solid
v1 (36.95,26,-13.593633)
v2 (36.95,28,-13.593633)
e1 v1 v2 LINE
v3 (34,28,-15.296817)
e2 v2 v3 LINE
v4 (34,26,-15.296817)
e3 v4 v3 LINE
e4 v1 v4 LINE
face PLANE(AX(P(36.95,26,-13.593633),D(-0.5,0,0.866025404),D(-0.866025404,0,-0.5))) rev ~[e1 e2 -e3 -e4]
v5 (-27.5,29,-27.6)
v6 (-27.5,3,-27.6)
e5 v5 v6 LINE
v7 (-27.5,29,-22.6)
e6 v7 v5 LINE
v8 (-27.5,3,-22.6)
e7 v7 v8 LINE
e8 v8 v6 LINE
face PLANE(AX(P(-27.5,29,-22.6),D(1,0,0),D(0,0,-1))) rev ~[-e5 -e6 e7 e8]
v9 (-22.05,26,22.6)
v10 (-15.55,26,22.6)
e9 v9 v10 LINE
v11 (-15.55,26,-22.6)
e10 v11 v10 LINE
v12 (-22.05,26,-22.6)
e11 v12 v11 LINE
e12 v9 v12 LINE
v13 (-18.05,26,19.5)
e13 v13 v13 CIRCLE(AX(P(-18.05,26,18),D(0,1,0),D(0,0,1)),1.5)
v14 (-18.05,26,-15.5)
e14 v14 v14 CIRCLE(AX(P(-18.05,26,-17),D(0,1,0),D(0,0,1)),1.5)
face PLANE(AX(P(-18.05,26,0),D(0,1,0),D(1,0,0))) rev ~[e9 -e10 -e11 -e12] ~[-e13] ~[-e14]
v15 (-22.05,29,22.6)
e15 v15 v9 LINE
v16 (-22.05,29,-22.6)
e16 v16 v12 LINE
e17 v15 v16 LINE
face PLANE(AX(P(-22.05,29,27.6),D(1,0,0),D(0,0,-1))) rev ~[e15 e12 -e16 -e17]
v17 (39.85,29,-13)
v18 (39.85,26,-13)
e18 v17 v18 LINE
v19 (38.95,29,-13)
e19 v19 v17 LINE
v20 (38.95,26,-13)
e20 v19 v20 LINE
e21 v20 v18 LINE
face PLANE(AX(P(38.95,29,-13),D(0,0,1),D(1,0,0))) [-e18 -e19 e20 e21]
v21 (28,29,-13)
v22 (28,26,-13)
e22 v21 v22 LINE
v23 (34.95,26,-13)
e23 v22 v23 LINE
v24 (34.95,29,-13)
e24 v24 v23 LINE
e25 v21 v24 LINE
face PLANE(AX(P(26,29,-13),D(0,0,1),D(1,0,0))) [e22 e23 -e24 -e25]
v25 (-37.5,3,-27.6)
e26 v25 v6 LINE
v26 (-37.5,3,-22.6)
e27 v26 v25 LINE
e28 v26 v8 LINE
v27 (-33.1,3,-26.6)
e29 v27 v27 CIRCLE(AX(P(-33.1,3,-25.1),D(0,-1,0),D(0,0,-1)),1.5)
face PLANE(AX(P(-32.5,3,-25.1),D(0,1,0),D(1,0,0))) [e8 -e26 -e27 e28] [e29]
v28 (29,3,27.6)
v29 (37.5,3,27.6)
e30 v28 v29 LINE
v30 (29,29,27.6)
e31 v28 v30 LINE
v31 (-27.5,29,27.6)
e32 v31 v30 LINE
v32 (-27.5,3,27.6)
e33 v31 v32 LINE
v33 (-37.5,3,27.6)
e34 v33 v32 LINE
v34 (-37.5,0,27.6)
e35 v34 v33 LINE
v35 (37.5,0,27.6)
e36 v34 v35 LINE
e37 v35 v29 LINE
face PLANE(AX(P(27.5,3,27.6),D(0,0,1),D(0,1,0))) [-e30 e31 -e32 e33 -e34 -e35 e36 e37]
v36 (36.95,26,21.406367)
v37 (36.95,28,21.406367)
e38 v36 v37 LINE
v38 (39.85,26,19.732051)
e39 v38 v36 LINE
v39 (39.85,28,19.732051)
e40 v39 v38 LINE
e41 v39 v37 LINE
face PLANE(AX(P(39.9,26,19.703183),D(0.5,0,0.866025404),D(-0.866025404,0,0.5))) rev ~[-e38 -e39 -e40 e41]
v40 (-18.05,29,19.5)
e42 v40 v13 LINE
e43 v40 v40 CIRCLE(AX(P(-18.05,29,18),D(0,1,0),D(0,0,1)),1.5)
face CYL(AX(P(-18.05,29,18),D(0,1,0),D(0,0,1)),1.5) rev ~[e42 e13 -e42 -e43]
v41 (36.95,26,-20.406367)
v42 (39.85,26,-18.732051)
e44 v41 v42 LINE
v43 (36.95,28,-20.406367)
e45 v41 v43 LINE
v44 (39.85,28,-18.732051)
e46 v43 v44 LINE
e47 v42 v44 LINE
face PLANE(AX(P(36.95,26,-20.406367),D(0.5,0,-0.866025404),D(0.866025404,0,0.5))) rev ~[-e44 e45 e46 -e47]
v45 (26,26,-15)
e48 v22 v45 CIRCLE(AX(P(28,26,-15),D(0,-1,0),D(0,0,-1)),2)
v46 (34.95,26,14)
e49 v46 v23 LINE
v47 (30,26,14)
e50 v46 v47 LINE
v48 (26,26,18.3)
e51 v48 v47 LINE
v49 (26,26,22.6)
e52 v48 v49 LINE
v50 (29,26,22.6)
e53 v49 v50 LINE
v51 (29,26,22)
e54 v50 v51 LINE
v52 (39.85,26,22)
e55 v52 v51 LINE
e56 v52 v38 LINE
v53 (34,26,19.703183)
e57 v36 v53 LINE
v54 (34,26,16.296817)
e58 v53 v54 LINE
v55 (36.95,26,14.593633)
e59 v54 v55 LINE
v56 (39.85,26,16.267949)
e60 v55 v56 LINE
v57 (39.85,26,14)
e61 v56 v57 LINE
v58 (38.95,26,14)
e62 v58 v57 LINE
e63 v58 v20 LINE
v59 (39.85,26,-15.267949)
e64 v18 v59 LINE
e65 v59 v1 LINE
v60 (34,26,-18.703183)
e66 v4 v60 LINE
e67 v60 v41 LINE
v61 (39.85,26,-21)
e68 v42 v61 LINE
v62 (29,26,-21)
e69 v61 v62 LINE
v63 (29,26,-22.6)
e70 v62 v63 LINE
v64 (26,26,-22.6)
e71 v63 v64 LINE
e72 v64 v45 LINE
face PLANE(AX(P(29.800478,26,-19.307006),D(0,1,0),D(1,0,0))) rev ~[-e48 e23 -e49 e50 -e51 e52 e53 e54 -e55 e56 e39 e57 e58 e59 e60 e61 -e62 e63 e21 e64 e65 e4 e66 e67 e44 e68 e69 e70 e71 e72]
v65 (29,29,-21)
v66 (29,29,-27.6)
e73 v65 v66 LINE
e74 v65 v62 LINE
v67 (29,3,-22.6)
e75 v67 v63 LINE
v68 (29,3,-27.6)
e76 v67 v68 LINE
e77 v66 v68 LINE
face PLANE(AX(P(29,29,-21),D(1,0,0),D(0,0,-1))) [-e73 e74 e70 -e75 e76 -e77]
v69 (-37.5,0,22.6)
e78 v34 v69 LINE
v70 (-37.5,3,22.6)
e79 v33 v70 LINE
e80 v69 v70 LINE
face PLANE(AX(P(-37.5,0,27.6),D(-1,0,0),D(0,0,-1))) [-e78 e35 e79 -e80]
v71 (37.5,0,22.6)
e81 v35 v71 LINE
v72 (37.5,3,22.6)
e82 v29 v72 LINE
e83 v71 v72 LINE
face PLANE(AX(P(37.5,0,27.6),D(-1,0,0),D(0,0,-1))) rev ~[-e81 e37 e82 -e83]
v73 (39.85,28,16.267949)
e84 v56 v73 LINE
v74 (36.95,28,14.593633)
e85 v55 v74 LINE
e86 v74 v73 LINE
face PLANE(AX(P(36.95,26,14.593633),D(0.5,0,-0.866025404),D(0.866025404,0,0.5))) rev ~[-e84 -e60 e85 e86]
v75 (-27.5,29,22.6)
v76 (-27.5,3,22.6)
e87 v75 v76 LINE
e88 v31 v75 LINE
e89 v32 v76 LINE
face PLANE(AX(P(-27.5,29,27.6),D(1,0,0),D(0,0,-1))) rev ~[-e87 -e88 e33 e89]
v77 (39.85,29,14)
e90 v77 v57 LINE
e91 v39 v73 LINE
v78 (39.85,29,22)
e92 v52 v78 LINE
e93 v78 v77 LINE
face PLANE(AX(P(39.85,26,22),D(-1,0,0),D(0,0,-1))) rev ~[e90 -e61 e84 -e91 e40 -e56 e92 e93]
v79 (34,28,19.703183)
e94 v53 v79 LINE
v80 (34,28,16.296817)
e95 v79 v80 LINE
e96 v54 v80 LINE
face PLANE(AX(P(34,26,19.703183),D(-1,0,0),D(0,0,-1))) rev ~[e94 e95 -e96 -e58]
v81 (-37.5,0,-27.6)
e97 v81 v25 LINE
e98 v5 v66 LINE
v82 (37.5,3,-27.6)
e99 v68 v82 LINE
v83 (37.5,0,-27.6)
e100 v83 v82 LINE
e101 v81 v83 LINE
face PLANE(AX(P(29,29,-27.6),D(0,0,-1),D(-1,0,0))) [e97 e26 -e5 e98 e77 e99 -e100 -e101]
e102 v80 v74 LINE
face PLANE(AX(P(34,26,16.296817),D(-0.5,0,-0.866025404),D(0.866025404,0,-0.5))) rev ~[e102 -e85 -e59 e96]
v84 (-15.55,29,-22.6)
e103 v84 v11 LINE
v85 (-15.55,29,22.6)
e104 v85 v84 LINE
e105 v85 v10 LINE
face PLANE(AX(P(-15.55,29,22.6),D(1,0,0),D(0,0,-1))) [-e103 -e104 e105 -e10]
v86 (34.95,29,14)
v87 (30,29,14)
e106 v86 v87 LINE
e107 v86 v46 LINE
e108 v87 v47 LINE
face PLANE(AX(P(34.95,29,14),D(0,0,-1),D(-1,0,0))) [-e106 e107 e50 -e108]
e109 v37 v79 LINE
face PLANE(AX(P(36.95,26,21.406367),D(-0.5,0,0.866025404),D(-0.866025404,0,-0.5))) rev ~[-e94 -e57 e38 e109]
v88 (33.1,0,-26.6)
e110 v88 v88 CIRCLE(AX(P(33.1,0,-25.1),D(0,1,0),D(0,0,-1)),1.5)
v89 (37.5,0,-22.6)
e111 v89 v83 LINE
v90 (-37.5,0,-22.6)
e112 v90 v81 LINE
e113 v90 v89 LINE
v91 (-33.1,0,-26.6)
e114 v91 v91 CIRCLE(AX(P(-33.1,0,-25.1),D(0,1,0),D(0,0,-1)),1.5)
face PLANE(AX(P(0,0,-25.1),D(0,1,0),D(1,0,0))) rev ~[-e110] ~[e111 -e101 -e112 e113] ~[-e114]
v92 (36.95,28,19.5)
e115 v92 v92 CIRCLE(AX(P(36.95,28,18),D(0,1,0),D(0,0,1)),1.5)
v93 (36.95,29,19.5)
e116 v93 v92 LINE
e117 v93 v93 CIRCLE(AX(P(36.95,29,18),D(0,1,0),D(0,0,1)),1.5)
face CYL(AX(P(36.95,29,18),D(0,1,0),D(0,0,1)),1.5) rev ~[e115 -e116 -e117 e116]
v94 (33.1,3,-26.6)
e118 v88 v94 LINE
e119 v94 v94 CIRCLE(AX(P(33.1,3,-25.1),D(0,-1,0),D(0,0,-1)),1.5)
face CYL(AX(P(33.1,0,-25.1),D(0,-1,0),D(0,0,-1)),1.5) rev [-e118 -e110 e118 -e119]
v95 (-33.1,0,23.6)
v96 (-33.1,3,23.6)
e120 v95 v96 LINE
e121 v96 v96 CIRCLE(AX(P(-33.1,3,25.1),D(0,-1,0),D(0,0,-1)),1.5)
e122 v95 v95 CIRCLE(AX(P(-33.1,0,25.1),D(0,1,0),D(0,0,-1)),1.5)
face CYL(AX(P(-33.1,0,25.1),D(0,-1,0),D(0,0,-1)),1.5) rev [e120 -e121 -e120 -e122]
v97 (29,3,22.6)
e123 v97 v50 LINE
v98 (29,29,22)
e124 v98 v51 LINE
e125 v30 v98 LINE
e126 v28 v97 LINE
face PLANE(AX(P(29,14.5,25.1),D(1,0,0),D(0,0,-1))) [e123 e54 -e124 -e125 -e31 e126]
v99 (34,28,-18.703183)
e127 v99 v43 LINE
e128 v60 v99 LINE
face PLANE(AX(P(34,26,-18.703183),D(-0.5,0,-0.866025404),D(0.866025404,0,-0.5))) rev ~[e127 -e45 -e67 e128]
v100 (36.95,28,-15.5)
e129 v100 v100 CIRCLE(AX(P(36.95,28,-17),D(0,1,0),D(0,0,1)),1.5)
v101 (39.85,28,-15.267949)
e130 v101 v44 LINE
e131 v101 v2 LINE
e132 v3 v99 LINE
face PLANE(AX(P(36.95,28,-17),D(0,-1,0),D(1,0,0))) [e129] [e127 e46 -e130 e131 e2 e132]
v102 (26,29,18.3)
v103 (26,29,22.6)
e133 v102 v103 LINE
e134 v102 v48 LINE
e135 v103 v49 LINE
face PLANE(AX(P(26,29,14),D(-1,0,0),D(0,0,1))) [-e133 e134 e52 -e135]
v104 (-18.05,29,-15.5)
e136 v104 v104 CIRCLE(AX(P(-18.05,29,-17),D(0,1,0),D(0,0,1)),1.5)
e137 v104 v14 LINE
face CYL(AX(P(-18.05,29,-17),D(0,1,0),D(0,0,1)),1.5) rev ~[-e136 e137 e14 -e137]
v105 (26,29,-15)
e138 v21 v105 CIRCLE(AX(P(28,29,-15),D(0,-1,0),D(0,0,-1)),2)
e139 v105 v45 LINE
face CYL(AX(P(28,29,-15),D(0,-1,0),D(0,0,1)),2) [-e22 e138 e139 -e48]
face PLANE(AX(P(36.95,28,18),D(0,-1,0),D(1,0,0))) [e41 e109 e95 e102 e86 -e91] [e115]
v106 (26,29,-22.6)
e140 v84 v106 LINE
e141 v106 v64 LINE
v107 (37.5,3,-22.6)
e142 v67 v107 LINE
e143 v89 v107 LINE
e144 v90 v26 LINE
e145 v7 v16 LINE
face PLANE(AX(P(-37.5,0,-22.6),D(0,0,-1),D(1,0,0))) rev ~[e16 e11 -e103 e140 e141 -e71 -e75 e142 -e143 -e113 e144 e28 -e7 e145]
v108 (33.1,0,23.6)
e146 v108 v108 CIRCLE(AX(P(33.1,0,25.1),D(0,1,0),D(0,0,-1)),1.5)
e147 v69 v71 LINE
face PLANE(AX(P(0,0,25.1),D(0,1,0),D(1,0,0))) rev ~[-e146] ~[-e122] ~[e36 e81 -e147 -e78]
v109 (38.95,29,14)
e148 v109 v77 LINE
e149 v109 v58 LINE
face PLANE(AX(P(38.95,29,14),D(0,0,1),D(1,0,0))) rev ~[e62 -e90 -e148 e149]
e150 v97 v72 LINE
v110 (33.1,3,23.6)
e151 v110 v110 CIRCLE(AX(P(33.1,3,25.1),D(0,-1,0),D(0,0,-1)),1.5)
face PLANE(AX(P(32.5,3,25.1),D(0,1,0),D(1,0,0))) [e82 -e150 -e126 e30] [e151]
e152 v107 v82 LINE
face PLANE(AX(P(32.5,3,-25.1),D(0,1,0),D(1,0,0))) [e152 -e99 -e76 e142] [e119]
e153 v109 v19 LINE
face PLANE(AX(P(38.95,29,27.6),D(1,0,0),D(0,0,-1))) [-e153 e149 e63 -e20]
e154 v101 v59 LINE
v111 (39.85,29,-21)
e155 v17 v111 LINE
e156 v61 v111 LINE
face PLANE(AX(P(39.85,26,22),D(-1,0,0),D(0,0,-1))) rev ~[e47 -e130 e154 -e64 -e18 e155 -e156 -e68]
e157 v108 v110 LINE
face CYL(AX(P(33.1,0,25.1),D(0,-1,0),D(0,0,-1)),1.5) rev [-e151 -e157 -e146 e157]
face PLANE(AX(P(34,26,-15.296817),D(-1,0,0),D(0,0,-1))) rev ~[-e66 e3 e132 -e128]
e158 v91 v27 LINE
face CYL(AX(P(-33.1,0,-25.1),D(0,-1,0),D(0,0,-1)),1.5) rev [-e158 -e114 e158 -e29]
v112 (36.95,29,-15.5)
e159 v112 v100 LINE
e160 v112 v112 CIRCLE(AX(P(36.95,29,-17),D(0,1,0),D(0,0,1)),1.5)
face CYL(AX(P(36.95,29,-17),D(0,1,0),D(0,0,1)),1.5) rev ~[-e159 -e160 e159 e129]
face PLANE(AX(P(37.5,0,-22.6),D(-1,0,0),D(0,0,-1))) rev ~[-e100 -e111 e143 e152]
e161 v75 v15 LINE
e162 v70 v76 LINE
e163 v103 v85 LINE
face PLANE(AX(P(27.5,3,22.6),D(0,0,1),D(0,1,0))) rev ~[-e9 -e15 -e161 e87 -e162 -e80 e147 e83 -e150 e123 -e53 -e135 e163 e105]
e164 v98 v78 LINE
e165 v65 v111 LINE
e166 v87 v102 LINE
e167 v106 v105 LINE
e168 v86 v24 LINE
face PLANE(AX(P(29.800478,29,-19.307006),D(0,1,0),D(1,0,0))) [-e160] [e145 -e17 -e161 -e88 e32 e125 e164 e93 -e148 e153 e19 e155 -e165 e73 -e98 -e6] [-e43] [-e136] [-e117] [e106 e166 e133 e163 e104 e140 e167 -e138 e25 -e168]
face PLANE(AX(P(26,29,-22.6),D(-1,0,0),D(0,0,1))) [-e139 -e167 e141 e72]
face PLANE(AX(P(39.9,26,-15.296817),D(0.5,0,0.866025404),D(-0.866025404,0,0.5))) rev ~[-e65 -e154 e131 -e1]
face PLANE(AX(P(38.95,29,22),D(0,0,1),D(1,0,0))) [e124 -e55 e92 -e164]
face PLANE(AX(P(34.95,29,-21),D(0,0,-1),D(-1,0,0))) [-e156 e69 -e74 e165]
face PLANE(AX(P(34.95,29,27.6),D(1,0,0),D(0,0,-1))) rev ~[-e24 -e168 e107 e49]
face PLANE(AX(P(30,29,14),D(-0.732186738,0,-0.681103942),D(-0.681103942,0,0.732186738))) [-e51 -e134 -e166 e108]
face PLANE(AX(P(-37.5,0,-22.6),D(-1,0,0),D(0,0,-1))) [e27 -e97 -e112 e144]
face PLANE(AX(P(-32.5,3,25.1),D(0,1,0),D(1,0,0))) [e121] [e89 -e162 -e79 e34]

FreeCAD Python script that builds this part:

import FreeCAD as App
import Part
import Sketcher
from FreeCAD import Vector
Q = App.Units.Quantity


def edges_at(feature, points):
    """Names of the edges that pass closest to the given points."""
    edges = feature.Shape.Edges
    near = lambda p: min(range(len(edges)), key=lambda i: edges[i].distToShape(Part.Vertex(*p))[0])
    return sorted({f"Edge{near(p) + 1}" for p in points})


def add_polygon(sketch, points):
    """Adds a closed chain of lines whose ends are joined by coincident constraints."""
    first, n = sketch.GeometryCount, len(points)
    for a, b in zip(points, points[1:] + points[:1]):
        sketch.addGeometry(Part.LineSegment(App.Vector(*a, 0), App.Vector(*b, 0)), False)
    for i in range(n):
        sketch.addConstraint(Sketcher.Constraint("Coincident", first + i, 2, first + (i + 1) % n, 1))

doc = App.newDocument("Part")
body = doc.addObject("PartDesign::Body", "Body")

sketch1 = doc.addObject("Sketcher::SketchObject", "Sketch")
body.addObject(sketch1)
sketch1.AttachmentSupport = (doc.XZ_Plane, [""])
sketch1.MapMode = "FlatFace"
add_polygon(sketch1, [(-37.5, -27.6), (-37.5, -22.6), (37.5, -22.6), (37.5, -27.6)])
sketch1.addGeometry(Part.Circle(Vector(-33.1, -25.1, 0), Vector(0, 0, 1), 1.5), False)
sketch1.addGeometry(Part.Circle(Vector(33.1, -25.1, 0), Vector(0, 0, 1), 1.5), False)
sketch1.addConstraint([
    Sketcher.Constraint("Vertical", 0),
    Sketcher.Constraint("Horizontal", 1),
    Sketcher.Constraint("Vertical", 2),
    Sketcher.Constraint("Horizontal", 3),
    Sketcher.Constraint("Equal", 4, 5),
    Sketcher.Constraint("Symmetric", 4, 3, 5, 3, -2),
    Sketcher.Constraint("Diameter", 4, Q("3 mm")),
    Sketcher.Constraint("DistanceX", 1, 1, 1, 2, Q("75 mm")),
    Sketcher.Constraint("DistanceY", 0, 1, 0, 2, Q("5 mm")),
    Sketcher.Constraint("DistanceX", 4, 3, -1, 1, Q("33.1 mm")),
    Sketcher.Constraint("DistanceY", 4, 3, -1, 1, Q("25.1 mm")),
    Sketcher.Constraint("DistanceX", 0, 2, -1, 1, Q("37.5 mm")),
    Sketcher.Constraint("DistanceY", 0, 2, -1, 1, Q("22.6 mm")),
])
pad1 = doc.addObject("PartDesign::Pad", "Pad")
body.addObject(pad1)
pad1.Profile = sketch1
pad1.Length = 29
pad1.Reversed = True
body2 = doc.addObject("PartDesign::Body", "Body001")

sketch2 = doc.addObject("Sketcher::SketchObject", "Sketch001")
body2.addObject(sketch2)
sketch2.AttachmentSupport = (doc.getObject("XZ_Plane001"), [""])
sketch2.MapMode = "FlatFace"
add_polygon(sketch2, [(-37.5, 22.6), (-37.5, 27.6), (37.5, 27.6), (37.5, 22.6)])
sketch2.addGeometry(Part.Circle(Vector(-33.1, 25.1, 0), Vector(0, 0, 1), 1.5), False)
sketch2.addGeometry(Part.Circle(Vector(33.1, 25.1, 0), Vector(0, 0, 1), 1.5), False)
sketch2.addConstraint([
    Sketcher.Constraint("Vertical", 0),
    Sketcher.Constraint("Horizontal", 1),
    Sketcher.Constraint("Vertical", 2),
    Sketcher.Constraint("Horizontal", 3),
    Sketcher.Constraint("Equal", 4, 5),
    Sketcher.Constraint("Symmetric", 4, 3, 5, 3, -2),
    Sketcher.Constraint("Diameter", 4, Q("3 mm")),
    Sketcher.Constraint("DistanceX", 1, 1, 1, 2, Q("75 mm")),
    Sketcher.Constraint("DistanceY", 0, 1, 0, 2, Q("5 mm")),
    Sketcher.Constraint("DistanceX", 4, 3, -1, 1, Q("33.1 mm")),
    Sketcher.Constraint("DistanceY", -1, 1, 4, 3, Q("25.1 mm")),
    Sketcher.Constraint("DistanceX", 0, 2, -1, 1, Q("37.5 mm")),
    Sketcher.Constraint("DistanceY", -1, 1, 0, 2, Q("27.6 mm")),
])
pad2 = doc.addObject("PartDesign::Pad", "Pad001")
body2.addObject(pad2)
pad2.Profile = sketch2
pad2.Length = 29
pad2.Reversed = True
body3 = doc.addObject("PartDesign::Body", "Body002")
body3.AllowCompound = True

sketch3 = doc.addObject("Sketcher::SketchObject", "Sketch002")
body3.addObject(sketch3)
sketch3.AttachmentSupport = (doc.getObject("XZ_Plane002"), [""])
sketch3.MapMode = "FlatFace"
sketch3.AttachmentOffset = App.Placement(Vector(0, 0, -29), App.Rotation())
add_polygon(sketch3, [(-38, -28), (-38, -23), (-28, -23), (-28, -28)])
add_polygon(sketch3, [(28, -28), (28, -23), (38, -23), (38, -28)])
add_polygon(sketch3, [(28, 23), (28, 28), (38, 28), (38, 23)])
add_polygon(sketch3, [(-38, 23), (-38, 28), (-28, 28), (-28, 23)])
sketch3.addConstraint([
    Sketcher.Constraint("Vertical", 0),
    Sketcher.Constraint("Horizontal", 1),
    Sketcher.Constraint("Vertical", 2),
    Sketcher.Constraint("Horizontal", 3),
    Sketcher.Constraint("Vertical", 4),
    Sketcher.Constraint("Horizontal", 5),
    Sketcher.Constraint("Vertical", 6),
    Sketcher.Constraint("Horizontal", 7),
    Sketcher.Constraint("Vertical", 8),
    Sketcher.Constraint("Horizontal", 9),
    Sketcher.Constraint("Vertical", 10),
    Sketcher.Constraint("Horizontal", 11),
    Sketcher.Constraint("Vertical", 12),
    Sketcher.Constraint("Horizontal", 13),
    Sketcher.Constraint("Vertical", 14),
    Sketcher.Constraint("Horizontal", 15),
    Sketcher.Constraint("Symmetric", 2, 2, 8, 2, -1, 1),
    Sketcher.Constraint("Symmetric", 0, 2, 10, 2, -1, 1),
    Sketcher.Constraint("Symmetric", 6, 2, 12, 2, -1, 1),
    Sketcher.Constraint("Symmetric", 4, 2, 14, 2, -1, 1),
    Sketcher.Constraint("Symmetric", 1, 2, 4, 2, -2),
    Sketcher.Constraint("Symmetric", 3, 2, 6, 2, -2),
    Sketcher.Constraint("DistanceX", 1, 1, 1, 2, Q("10 mm")),
    Sketcher.Constraint("DistanceY", 0, 1, 0, 2, Q("5 mm")),
    Sketcher.Constraint("DistanceX", 1, 2, 4, 2, Q("55 mm")),
    Sketcher.Constraint("DistanceY", 0, 2, -1, 1, Q("22.6 mm")),
])
pad3 = doc.addObject("PartDesign::Pad", "Pad002")
body3.addObject(pad3)
pad3.Profile = sketch3
pad3.Length = 26
doc.recompute()

body4 = doc.addObject("PartDesign::Body", "Body003")
body4.BaseFeature = body3
boolean = doc.addObject("PartDesign::Boolean", "Boolean")
body.addObject(boolean)
boolean.Type = "Cut"
boolean.addObjects([body4])
doc.recompute()

boolean2 = doc.addObject("PartDesign::Boolean", "Boolean001")
body2.addObject(boolean2)
boolean2.Type = "Cut"
boolean2.addObjects([body3])
body.AllowCompound = True
doc.recompute()

boolean3 = doc.addObject("PartDesign::Boolean", "Boolean002")
body.addObject(boolean3)
boolean3.Type = "Fuse"
boolean3.addObjects([body2])

sketch4 = doc.addObject("Sketcher::SketchObject", "Sketch003")
body.addObject(sketch4)
sketch4.AttachmentSupport = (doc.XZ_Plane, [""])
sketch4.MapMode = "FlatFace"
sketch4.AttachmentOffset = App.Placement(Vector(0, 0, -29), App.Rotation())
add_polygon(sketch4, [(35, -27.6), (35, 27.6), (39, 27.6), (39, -27.6)])
sketch4.addGeometry(Part.Circle(Vector(37, 18, 0), Vector(0, 0, 1), 1.5), False)
sketch4.addGeometry(Part.Circle(Vector(37, -17, 0), Vector(0, 0, 1), 1.5), False)
add_polygon(sketch4, [(-22.1, -27.6), (-22.1, 27.6), (-14.1, 27.6), (-14.1, -27.6)])
sketch4.addGeometry(Part.Circle(Vector(-18.1, 18, 0), Vector(0, 0, 1), 1.5), False)
sketch4.addGeometry(Part.Circle(Vector(-18.1, -17, 0), Vector(0, 0, 1), 1.5), False)
sketch4.addConstraint([
    Sketcher.Constraint("Vertical", 0),
    Sketcher.Constraint("Horizontal", 1),
    Sketcher.Constraint("Vertical", 2),
    Sketcher.Constraint("Horizontal", 3),
    Sketcher.Constraint("Vertical", 6),
    Sketcher.Constraint("Horizontal", 7),
    Sketcher.Constraint("Vertical", 8),
    Sketcher.Constraint("Horizontal", 9),
    Sketcher.Constraint("Equal", 4, 5),
    Sketcher.Constraint("Equal", 5, 10),
    Sketcher.Constraint("Equal", 10, 11),
    Sketcher.Constraint("Horizontal", 4, 3, 10, 3),
    Sketcher.Constraint("Horizontal", 5, 3, 11, 3),
    Sketcher.Constraint("Horizontal", 1, 2, 6, 2),
    Sketcher.Constraint("Horizontal", 3, 2, 8, 2),
    Sketcher.Constraint("Vertical", 4, 3, 5, 3),
    Sketcher.Constraint("Vertical", 10, 3, 11, 3),
    Sketcher.Constraint("Diameter", 4, Q("3 mm")),
    Sketcher.Constraint("DistanceX", 1, 1, 1, 2, Q("4 mm")),
    Sketcher.Constraint("DistanceX", 7, 1, 7, 2, Q("8 mm")),
    Sketcher.Constraint("DistanceY", 0, 1, 0, 2, Q("55.2 mm")),
    Sketcher.Constraint("DistanceY", -1, 1, 4, 3, Q("18 mm")),
    Sketcher.Constraint("DistanceY", 5, 3, -1, 1, Q("17 mm")),
    Sketcher.Constraint("DistanceX", 10, 3, 4, 3, Q("55 mm")),
    Sketcher.Constraint("DistanceX", 0, 2, 4, 3, Q("2 mm")),
    Sketcher.Constraint("DistanceX", 6, 2, 10, 3, Q("4 mm")),
    Sketcher.Constraint("DistanceY", -1, 1, 0, 2, Q("27.6 mm")),
    Sketcher.Constraint("DistanceX", -1, 1, 4, 3, Q("36.95 mm")),
])
pad4 = doc.addObject("PartDesign::Pad", "Pad003")
body.addObject(pad4)
pad4.Profile = sketch4
pad4.Length = 3

sketch5 = doc.addObject("Sketcher::SketchObject", "Sketch004")
body.addObject(sketch5)
sketch5.AttachmentSupport = (doc.XZ_Plane, [""])
sketch5.MapMode = "FlatFace"
sketch5.AttachmentOffset = App.Placement(Vector(0, 0, -29), App.Rotation())
add_polygon(sketch5, [(29, -21), (29, -27.6), (27.5, -27.6), (27.5, -22.6), (26, -22.6), (26, -13), (35, -13), (35, -21)])
add_polygon(sketch5, [(39, -21), (39, -13), (41, -13), (41, -21)])
add_polygon(sketch5, [(35, 22), (35, 14), (26, 14), (26, 22.6), (27.5, 22.6), (27.5, 27.6), (29, 27.6), (29, 22)])
add_polygon(sketch5, [(39, 14), (39, 22), (41, 22), (41, 14)])
sketch5.addConstraint([
    Sketcher.Constraint("Vertical", 0),
    Sketcher.Constraint("Horizontal", 1),
    Sketcher.Constraint("Vertical", 2),
    Sketcher.Constraint("Horizontal", 3),
    Sketcher.Constraint("Vertical", 4),
    Sketcher.Constraint("Horizontal", 5),
    Sketcher.Constraint("Vertical", 6),
    Sketcher.Constraint("Horizontal", 7),
    Sketcher.Constraint("Vertical", 8),
    Sketcher.Constraint("Horizontal", 9),
    Sketcher.Constraint("Vertical", 10),
    Sketcher.Constraint("Horizontal", 11),
    Sketcher.Constraint("Vertical", 12),
    Sketcher.Constraint("Horizontal", 13),
    Sketcher.Constraint("Vertical", 14),
    Sketcher.Constraint("Horizontal", 15),
    Sketcher.Constraint("Vertical", 16),
    Sketcher.Constraint("Horizontal", 17),
    Sketcher.Constraint("Vertical", 18),
    Sketcher.Constraint("Horizontal", 19),
    Sketcher.Constraint("Vertical", 20),
    Sketcher.Constraint("Horizontal", 21),
    Sketcher.Constraint("Vertical", 22),
    Sketcher.Constraint("Horizontal", 23),
    Sketcher.Constraint("Symmetric", 3, 2, 14, 2, -1),
    Sketcher.Constraint("Symmetric", 1, 2, 16, 2, -1),
    Sketcher.Constraint("Horizontal", 5, 2, 8, 2),
    Sketcher.Constraint("Horizontal", 7, 2, 10, 2),
    Sketcher.Constraint("Horizontal", 19, 2, 20, 2),
    Sketcher.Constraint("Horizontal", 13, 2, 22, 2),
    Sketcher.Constraint("Vertical", 6, 2, 12, 2),
    Sketcher.Constraint("Vertical", 7, 2, 17, 2),
    Sketcher.Constraint("Vertical", 11, 2, 20, 2),
    Sketcher.Constraint("Vertical", 10, 2, 21, 2),
    Sketcher.Constraint("Equal", 1, 3),
    Sketcher.Constraint("Equal", 10, 12),
    Sketcher.Constraint("DistanceX", 9, 1, 9, 2, Q("2 mm")),
    Sketcher.Constraint("DistanceY", 2, 1, 2, 2, Q("5 mm")),
    Sketcher.Constraint("DistanceY", 6, 2, 6, 1, Q("8 mm")),
    Sketcher.Constraint("DistanceX", 1, 2, 1, 1, Q("1.5 mm")),
    Sketcher.Constraint("DistanceY", 0, 2, 0, 1, Q("6.6 mm")),
    Sketcher.Constraint("DistanceY", 14, 1, 14, 2, Q("8.6 mm")),
    Sketcher.Constraint("DistanceX", -1, 1, 0, 2, Q("29 mm")),
    Sketcher.Constraint("DistanceY", 4, 2, -1, 1, Q("13 mm")),
    Sketcher.Constraint("DistanceX", 5, 2, 8, 2, Q("4 mm")),
    Sketcher.Constraint("DistanceX", 5, 1, 5, 2, Q("8.95 mm")),
])
pad5 = doc.addObject("PartDesign::Pad", "Pad004")
body.addObject(pad5)
pad5.Profile = sketch5
pad5.Length = 3

sketch6 = doc.addObject("Sketcher::SketchObject", "Sketch005")
body.addObject(sketch6)
sketch6.AttachmentSupport = (doc.XZ_Plane, [""])
sketch6.MapMode = "FlatFace"
sketch6.AttachmentOffset = App.Placement(Vector(0, 0, -29), App.Rotation())
add_polygon(sketch6, [(35, -27.6), (35, -21), (39, -21), (39, -27.6)])
sketch6.addConstraint([
    Sketcher.Constraint("Vertical", 0),
    Sketcher.Constraint("Horizontal", 1),
    Sketcher.Constraint("Vertical", 2),
    Sketcher.Constraint("Horizontal", 3),
    Sketcher.Constraint("DistanceX", 1, 1, 1, 2, Q("4 mm")),
    Sketcher.Constraint("DistanceY", 0, 1, 0, 2, Q("6.6 mm")),
    Sketcher.Constraint("DistanceY", 0, 2, -1, 1, Q("21 mm")),
    Sketcher.Constraint("DistanceX", -1, 1, 0, 2, Q("34.95 mm")),
])
pocket1 = doc.addObject("PartDesign::Pocket", "Pocket")
body.addObject(pocket1)
pocket1.Profile = sketch6
pocket1.Type = "UpToFirst"
pocket1.Reversed = True

sketch7 = doc.addObject("Sketcher::SketchObject", "Sketch006")
body.addObject(sketch7)
sketch7.AttachmentSupport = (doc.XZ_Plane, [""])
sketch7.MapMode = "FlatFace"
sketch7.AttachmentOffset = App.Placement(Vector(0, 0, -29), App.Rotation())
add_polygon(sketch7, [(35, 22), (35, 27.6), (39, 27.6), (39, 22)])
sketch7.addConstraint([
    Sketcher.Constraint("Vertical", 0),
    Sketcher.Constraint("Horizontal", 1),
    Sketcher.Constraint("Vertical", 2),
    Sketcher.Constraint("Horizontal", 3),
    Sketcher.Constraint("DistanceX", 1, 1, 1, 2, Q("4 mm")),
    Sketcher.Constraint("DistanceY", 0, 1, 0, 2, Q("5.6 mm")),
    Sketcher.Constraint("DistanceY", -1, 1, 2, 2, Q("22 mm")),
    Sketcher.Constraint("DistanceX", -1, 1, 0, 2, Q("34.95 mm")),
])
pocket2 = doc.addObject("PartDesign::Pocket", "Pocket001")
body.addObject(pocket2)
pocket2.Profile = sketch7
pocket2.Type = "UpToFirst"
pocket2.Reversed = True

sketch8 = doc.addObject("Sketcher::SketchObject", "Sketch007")
body.addObject(sketch8)
sketch8.AttachmentSupport = (doc.XZ_Plane, [""])
sketch8.MapMode = "FlatFace"
sketch8.AttachmentOffset = App.Placement(Vector(0, 0, -26), App.Rotation())
add_polygon(sketch8, [(37, -13.6), (34, -15.3), (34, -18.7), (37, -20.4), (39.9, -18.7), (39.9, -15.3)])
add_polygon(sketch8, [(37, 21.4), (34, 19.7), (34, 16.3), (37, 14.6), (39.9, 16.3), (39.9, 19.7)])
sketch8.addConstraint([
    Sketcher.Constraint("Vertical", 1),
    Sketcher.Constraint("Vertical", 4),
    Sketcher.Constraint("Vertical", 7),
    Sketcher.Constraint("Vertical", 10),
    Sketcher.Constraint("Parallel", 0, 3),
    Sketcher.Constraint("Parallel", 2, 5),
    Sketcher.Constraint("Parallel", 3, 6),
    Sketcher.Constraint("Parallel", 5, 8),
    Sketcher.Constraint("Parallel", 6, 9),
    Sketcher.Constraint("Parallel", 8, 11),
    Sketcher.Constraint("Horizontal", 1, 2, 3, 2),
    Sketcher.Constraint("Horizontal", 0, 2, 4, 2),
    Sketcher.Constraint("Horizontal", 7, 2, 9, 2),
    Sketcher.Constraint("Horizontal", 6, 2, 10, 2),
    Sketcher.Constraint("Vertical", 2, 2, 5, 2),
    Sketcher.Constraint("Vertical", 1, 2, 6, 2),
    Sketcher.Constraint("Vertical", 5, 2, 8, 2),
    Sketcher.Constraint("Equal", 4, 7),
    Sketcher.Constraint("Angle", 0, Q("-150 deg")),
    Sketcher.Constraint("DistanceX", -1, 1, 0, 2, Q("34 mm")),
    Sketcher.Constraint("DistanceY", 0, 2, 6, 2, Q("35 mm")),
    Sketcher.Constraint("DistanceX", -1, 1, 3, 2, Q("39.9 mm")),
    Sketcher.Constraint("DistanceY", 1, 2, 1, 1, Q("3.406367 mm")),
    Sketcher.Constraint("DistanceY", 0, 2, -1, 1, Q("15.296817 mm")),
])
pocket3 = doc.addObject("PartDesign::Pocket", "Pocket002")
body.addObject(pocket3)
pocket3.Profile = sketch8
pocket3.Length = 2

sketch9 = doc.addObject("Sketcher::SketchObject", "Sketch008")
body.addObject(sketch9)
sketch9.AttachmentSupport = (doc.XZ_Plane, [""])
sketch9.MapMode = "FlatFace"
sketch9.AttachmentOffset = App.Placement(Vector(0, 0, -26), App.Rotation())
add_polygon(sketch9, [(39.9, -21), (39.9, 22), (41, 22), (41, -21)])
sketch9.addConstraint([
    Sketcher.Constraint("Vertical", 0),
    Sketcher.Constraint("Horizontal", 1),
    Sketcher.Constraint("Vertical", 2),
    Sketcher.Constraint("Horizontal", 3),
    Sketcher.Constraint("DistanceY", 0, 1, 0, 2, Q("43 mm")),
    Sketcher.Constraint("DistanceX", 1, 1, 1, 2, Q("1.1 mm")),
    Sketcher.Constraint("DistanceY", -1, 1, 0, 2, Q("22 mm")),
    Sketcher.Constraint("DistanceX", -1, 1, 0, 2, Q("39.85 mm")),
])
pocket4 = doc.addObject("PartDesign::Pocket", "Pocket003")
body.addObject(pocket4)
pocket4.Profile = sketch9
pocket4.Length = 3

sketch10 = doc.addObject("Sketcher::SketchObject", "Sketch009")
body.addObject(sketch10)
sketch10.AttachmentSupport = (doc.YZ_Plane, [""])
sketch10.MapMode = "FlatFace"
sketch10.AttachmentOffset = App.Placement(Vector(0, 0, 27.5), App.Rotation())
add_polygon(sketch10, [(26, 28), (3, 28), (3, 23), (26, 23)])
add_polygon(sketch10, [(26, -23), (3, -23), (3, -28), (26, -28)])
sketch10.addConstraint([
    Sketcher.Constraint("Horizontal", 0),
    Sketcher.Constraint("Vertical", 1),
    Sketcher.Constraint("Horizontal", 2),
    Sketcher.Constraint("Vertical", 3),
    Sketcher.Constraint("Horizontal", 4),
    Sketcher.Constraint("Vertical", 5),
    Sketcher.Constraint("Horizontal", 6),
    Sketcher.Constraint("Vertical", 7),
    Sketcher.Constraint("Symmetric", 1, 2, 4, 2, -1),
    Sketcher.Constraint("Symmetric", 3, 2, 6, 2, -1),
    Sketcher.Constraint("DistanceX", 0, 2, 0, 1, Q("23 mm")),
    Sketcher.Constraint("DistanceY", 1, 2, 1, 1, Q("5 mm")),
    Sketcher.Constraint("DistanceX", -1, 1, 0, 2, Q("3 mm")),
    Sketcher.Constraint("DistanceY", -1, 1, 0, 2, Q("27.6 mm")),
])
pad6 = doc.addObject("PartDesign::Pad", "Pad005")
body.addObject(pad6)
pad6.Profile = sketch10
pad6.Length = 1.5

sketch11 = doc.addObject("Sketcher::SketchObject", "Sketch010")
body.addObject(sketch11)
sketch11.AttachmentSupport = (doc.XZ_Plane, [""])
sketch11.MapMode = "FlatFace"
sketch11.AttachmentOffset = App.Placement(Vector(0, 0, -29), App.Rotation())
add_polygon(sketch11, [(30, 14), (26, 14), (26, 18.3)])
sketch11.addConstraint([
    Sketcher.Constraint("Horizontal", 0),
    Sketcher.Constraint("Vertical", 1),
    Sketcher.Constraint("DistanceX", 0, 2, 0, 1, Q("4 mm")),
    Sketcher.Constraint("DistanceY", 1, 1, 1, 2, Q("4.3 mm")),
    Sketcher.Constraint("DistanceX", -1, 1, 0, 2, Q("26 mm")),
    Sketcher.Constraint("DistanceY", -1, 1, 0, 2, Q("14 mm")),
])
pocket5 = doc.addObject("PartDesign::Pocket", "Pocket004")
body.addObject(pocket5)
pocket5.Profile = sketch11
pocket5.Type = "UpToFirst"
pocket5.Reversed = True
doc.recompute()

fillet = doc.addObject("PartDesign::Fillet", "Fillet")
body.addObject(fillet)
fillet.Base = (pocket5, edges_at(pocket5, [(26, 27.5, -13)]))
fillet.Radius = 2

sketch12 = doc.addObject("Sketcher::SketchObject", "Sketch011")
body.addObject(sketch12)
sketch12.AttachmentSupport = (doc.XZ_Plane, [""])
sketch12.MapMode = "FlatFace"
sketch12.AttachmentOffset = App.Placement(Vector(0, 0, -29), App.Rotation())
add_polygon(sketch12, [(-15.6, -22.6), (-15.6, 22.6), (-14.1, 22.6), (-14.1, -22.6)])
sketch12.addConstraint([
    Sketcher.Constraint("Vertical", 0),
    Sketcher.Constraint("Horizontal", 1),
    Sketcher.Constraint("Vertical", 2),
    Sketcher.Constraint("Horizontal", 3),
    Sketcher.Constraint("DistanceX", 1, 1, 1, 2, Q("1.5 mm")),
    Sketcher.Constraint("DistanceY", 0, 1, 0, 2, Q("45.2 mm")),
    Sketcher.Constraint("DistanceY", -1, 1, 0, 2, Q("22.6 mm")),
    Sketcher.Constraint("DistanceX", 0, 2, -1, 1, Q("15.55 mm")),
])
pocket6 = doc.addObject("PartDesign::Pocket", "Pocket005")
body.addObject(pocket6)
pocket6.Profile = sketch12
pocket6.Type = "UpToFirst"
pocket6.Reversed = True

doc.recompute()
